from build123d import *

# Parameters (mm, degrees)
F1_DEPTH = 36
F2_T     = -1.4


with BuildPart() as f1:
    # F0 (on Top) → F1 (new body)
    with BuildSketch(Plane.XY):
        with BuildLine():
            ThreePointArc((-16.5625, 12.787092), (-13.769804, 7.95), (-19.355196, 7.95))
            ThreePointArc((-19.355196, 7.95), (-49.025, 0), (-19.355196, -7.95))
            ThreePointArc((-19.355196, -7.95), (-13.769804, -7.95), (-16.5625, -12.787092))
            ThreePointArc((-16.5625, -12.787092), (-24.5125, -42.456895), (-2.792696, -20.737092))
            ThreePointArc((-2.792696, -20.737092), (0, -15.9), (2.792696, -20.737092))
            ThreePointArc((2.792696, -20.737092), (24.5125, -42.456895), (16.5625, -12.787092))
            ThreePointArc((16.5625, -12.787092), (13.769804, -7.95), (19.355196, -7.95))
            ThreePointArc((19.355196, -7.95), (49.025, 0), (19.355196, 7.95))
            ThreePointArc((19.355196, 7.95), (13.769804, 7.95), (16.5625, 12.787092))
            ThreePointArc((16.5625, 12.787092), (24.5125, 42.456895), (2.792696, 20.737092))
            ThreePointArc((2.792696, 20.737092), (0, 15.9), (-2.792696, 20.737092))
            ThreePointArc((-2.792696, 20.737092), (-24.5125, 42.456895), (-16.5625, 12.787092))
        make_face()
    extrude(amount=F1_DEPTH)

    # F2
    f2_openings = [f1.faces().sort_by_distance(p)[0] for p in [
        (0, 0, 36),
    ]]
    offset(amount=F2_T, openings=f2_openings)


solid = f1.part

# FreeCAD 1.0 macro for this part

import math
import FreeCAD as App
import Part
import Sketcher


def faces_at(feature, points):
    """Names of the faces that lie closest to the given points."""
    faces = feature.Shape.Faces
    near = lambda p: min(range(len(faces)), key=lambda i: faces[i].distToShape(Part.Vertex(*p))[0])
    return sorted({f"Face{near(p) + 1}" for p in points})

doc = App.newDocument("Part")
body = doc.addObject("PartDesign::Body", "Body")

# Sketch on XY plane
sketch1 = body.newObject("Sketcher::SketchObject", "Sketch")
sketch1.AttachmentSupport = (doc.getObject("XY_Plane"), [""])
sketch1.MapMode = "FlatFace"
sketch1.addGeometry([
    Part.ArcOfCircle(Part.Circle(App.Vector(-16.6, 9.6, 0), App.Vector(0, 0, 1), 3.2), math.radians(-150), math.radians(90)),  # 0
    Part.ArcOfCircle(Part.Circle(App.Vector(-33.1, 0, 0), App.Vector(0, 0, 1), 15.9), math.radians(30), math.radians(330)),  # 1
    Part.ArcOfCircle(Part.Circle(App.Vector(-16.6, -9.6, 0), App.Vector(0, 0, 1), 3.2), math.radians(-90), math.radians(150)),  # 2
    Part.ArcOfCircle(Part.Circle(App.Vector(-16.6, -28.7, 0), App.Vector(0, 0, 1), 15.9), math.radians(90), math.radians(390)),  # 3
    Part.ArcOfCircle(Part.Circle(App.Vector(0, -19.1, 0), App.Vector(0, 0, 1), 3.2), math.radians(-30), math.radians(210)),  # 4
    Part.ArcOfCircle(Part.Circle(App.Vector(16.6, -28.7, 0), App.Vector(0, 0, 1), 15.9), math.radians(150), math.radians(450)),  # 5
    Part.ArcOfCircle(Part.Circle(App.Vector(16.6, -9.6, 0), App.Vector(0, 0, 1), 3.2), math.radians(30), math.radians(270)),  # 6
    Part.ArcOfCircle(Part.Circle(App.Vector(33.1, 0, 0), App.Vector(0, 0, 1), 15.9), math.radians(-150), math.radians(150)),  # 7
    Part.ArcOfCircle(Part.Circle(App.Vector(16.6, 9.6, 0), App.Vector(0, 0, 1), 3.2), math.radians(90), math.radians(330)),  # 8
    Part.ArcOfCircle(Part.Circle(App.Vector(16.6, 28.7, 0), App.Vector(0, 0, 1), 15.9), math.radians(-90), math.radians(210)),  # 9
    Part.ArcOfCircle(Part.Circle(App.Vector(0, 19.1, 0), App.Vector(0, 0, 1), 3.2), math.radians(150), math.radians(390)),  # 10
    Part.ArcOfCircle(Part.Circle(App.Vector(-16.6, 28.7, 0), App.Vector(0, 0, 1), 15.9), math.radians(-30), math.radians(270)),  # 11
], False)
sketch1.addConstraint([
    Sketcher.Constraint("Tangent", 0, 1, 1, 1),
    Sketcher.Constraint("Tangent", 1, 2, 2, 2),
    Sketcher.Constraint("Tangent", 2, 1, 3, 1),
    Sketcher.Constraint("Tangent", 3, 2, 4, 2),
    Sketcher.Constraint("Tangent", 4, 1, 5, 1),
    Sketcher.Constraint("Tangent", 5, 2, 6, 2),
    Sketcher.Constraint("Tangent", 6, 1, 7, 1),
    Sketcher.Constraint("Tangent", 7, 2, 8, 2),
    Sketcher.Constraint("Tangent", 8, 1, 9, 1),
    Sketcher.Constraint("Tangent", 9, 2, 10, 2),
    Sketcher.Constraint("Tangent", 10, 1, 11, 1),
    Sketcher.Constraint("Tangent", 11, 2, 0, 2),
    Sketcher.Constraint("Equal", 0, 2),
    Sketcher.Constraint("Equal", 1, 3),
    Sketcher.Constraint("Equal", 2, 4),
    Sketcher.Constraint("Equal", 3, 5),
    Sketcher.Constraint("Equal", 4, 6),
    Sketcher.Constraint("Equal", 5, 7),
    Sketcher.Constraint("Equal", 6, 8),
    Sketcher.Constraint("Equal", 7, 9),
    Sketcher.Constraint("Equal", 8, 10),
    Sketcher.Constraint("Equal", 9, 11),
    Sketcher.Constraint("Symmetric", 0, 3, 6, 3, -1, 1),
    Sketcher.Constraint("Symmetric", 2, 3, 8, 3, -1, 1),
    Sketcher.Constraint("Symmetric", 4, 3, 10, 3, -1, 1),
    Sketcher.Constraint("Symmetric", 3, 3, 5, 3, -2),
    Sketcher.Constraint("PointOnObject", 1, 3, -1),
    Sketcher.Constraint("Vertical", 2, 3, 3, 3),
    Sketcher.Constraint("Radius", 1, 15.9),
    Sketcher.Constraint("DistanceY", 1, 2, 0, 1, 15.9),
    Sketcher.Constraint("DistanceY", 3, 3, 3, 2, 7.95),
    Sketcher.Constraint("DistanceX", 1, 3, -1, 1, 33.125),
])
pad1 = body.newObject("PartDesign::Pad", "Pad")
pad1.Profile = sketch1
pad1.Length = 36
doc.recompute()

thickness = body.newObject("PartDesign::Thickness", "Thickness")
thickness.Base = (pad1, faces_at(pad1, [(0, 0, 36)]))
thickness.Value = 1.4
thickness.Reversed = True
thickness.Join = "Arc"

doc.recompute()
